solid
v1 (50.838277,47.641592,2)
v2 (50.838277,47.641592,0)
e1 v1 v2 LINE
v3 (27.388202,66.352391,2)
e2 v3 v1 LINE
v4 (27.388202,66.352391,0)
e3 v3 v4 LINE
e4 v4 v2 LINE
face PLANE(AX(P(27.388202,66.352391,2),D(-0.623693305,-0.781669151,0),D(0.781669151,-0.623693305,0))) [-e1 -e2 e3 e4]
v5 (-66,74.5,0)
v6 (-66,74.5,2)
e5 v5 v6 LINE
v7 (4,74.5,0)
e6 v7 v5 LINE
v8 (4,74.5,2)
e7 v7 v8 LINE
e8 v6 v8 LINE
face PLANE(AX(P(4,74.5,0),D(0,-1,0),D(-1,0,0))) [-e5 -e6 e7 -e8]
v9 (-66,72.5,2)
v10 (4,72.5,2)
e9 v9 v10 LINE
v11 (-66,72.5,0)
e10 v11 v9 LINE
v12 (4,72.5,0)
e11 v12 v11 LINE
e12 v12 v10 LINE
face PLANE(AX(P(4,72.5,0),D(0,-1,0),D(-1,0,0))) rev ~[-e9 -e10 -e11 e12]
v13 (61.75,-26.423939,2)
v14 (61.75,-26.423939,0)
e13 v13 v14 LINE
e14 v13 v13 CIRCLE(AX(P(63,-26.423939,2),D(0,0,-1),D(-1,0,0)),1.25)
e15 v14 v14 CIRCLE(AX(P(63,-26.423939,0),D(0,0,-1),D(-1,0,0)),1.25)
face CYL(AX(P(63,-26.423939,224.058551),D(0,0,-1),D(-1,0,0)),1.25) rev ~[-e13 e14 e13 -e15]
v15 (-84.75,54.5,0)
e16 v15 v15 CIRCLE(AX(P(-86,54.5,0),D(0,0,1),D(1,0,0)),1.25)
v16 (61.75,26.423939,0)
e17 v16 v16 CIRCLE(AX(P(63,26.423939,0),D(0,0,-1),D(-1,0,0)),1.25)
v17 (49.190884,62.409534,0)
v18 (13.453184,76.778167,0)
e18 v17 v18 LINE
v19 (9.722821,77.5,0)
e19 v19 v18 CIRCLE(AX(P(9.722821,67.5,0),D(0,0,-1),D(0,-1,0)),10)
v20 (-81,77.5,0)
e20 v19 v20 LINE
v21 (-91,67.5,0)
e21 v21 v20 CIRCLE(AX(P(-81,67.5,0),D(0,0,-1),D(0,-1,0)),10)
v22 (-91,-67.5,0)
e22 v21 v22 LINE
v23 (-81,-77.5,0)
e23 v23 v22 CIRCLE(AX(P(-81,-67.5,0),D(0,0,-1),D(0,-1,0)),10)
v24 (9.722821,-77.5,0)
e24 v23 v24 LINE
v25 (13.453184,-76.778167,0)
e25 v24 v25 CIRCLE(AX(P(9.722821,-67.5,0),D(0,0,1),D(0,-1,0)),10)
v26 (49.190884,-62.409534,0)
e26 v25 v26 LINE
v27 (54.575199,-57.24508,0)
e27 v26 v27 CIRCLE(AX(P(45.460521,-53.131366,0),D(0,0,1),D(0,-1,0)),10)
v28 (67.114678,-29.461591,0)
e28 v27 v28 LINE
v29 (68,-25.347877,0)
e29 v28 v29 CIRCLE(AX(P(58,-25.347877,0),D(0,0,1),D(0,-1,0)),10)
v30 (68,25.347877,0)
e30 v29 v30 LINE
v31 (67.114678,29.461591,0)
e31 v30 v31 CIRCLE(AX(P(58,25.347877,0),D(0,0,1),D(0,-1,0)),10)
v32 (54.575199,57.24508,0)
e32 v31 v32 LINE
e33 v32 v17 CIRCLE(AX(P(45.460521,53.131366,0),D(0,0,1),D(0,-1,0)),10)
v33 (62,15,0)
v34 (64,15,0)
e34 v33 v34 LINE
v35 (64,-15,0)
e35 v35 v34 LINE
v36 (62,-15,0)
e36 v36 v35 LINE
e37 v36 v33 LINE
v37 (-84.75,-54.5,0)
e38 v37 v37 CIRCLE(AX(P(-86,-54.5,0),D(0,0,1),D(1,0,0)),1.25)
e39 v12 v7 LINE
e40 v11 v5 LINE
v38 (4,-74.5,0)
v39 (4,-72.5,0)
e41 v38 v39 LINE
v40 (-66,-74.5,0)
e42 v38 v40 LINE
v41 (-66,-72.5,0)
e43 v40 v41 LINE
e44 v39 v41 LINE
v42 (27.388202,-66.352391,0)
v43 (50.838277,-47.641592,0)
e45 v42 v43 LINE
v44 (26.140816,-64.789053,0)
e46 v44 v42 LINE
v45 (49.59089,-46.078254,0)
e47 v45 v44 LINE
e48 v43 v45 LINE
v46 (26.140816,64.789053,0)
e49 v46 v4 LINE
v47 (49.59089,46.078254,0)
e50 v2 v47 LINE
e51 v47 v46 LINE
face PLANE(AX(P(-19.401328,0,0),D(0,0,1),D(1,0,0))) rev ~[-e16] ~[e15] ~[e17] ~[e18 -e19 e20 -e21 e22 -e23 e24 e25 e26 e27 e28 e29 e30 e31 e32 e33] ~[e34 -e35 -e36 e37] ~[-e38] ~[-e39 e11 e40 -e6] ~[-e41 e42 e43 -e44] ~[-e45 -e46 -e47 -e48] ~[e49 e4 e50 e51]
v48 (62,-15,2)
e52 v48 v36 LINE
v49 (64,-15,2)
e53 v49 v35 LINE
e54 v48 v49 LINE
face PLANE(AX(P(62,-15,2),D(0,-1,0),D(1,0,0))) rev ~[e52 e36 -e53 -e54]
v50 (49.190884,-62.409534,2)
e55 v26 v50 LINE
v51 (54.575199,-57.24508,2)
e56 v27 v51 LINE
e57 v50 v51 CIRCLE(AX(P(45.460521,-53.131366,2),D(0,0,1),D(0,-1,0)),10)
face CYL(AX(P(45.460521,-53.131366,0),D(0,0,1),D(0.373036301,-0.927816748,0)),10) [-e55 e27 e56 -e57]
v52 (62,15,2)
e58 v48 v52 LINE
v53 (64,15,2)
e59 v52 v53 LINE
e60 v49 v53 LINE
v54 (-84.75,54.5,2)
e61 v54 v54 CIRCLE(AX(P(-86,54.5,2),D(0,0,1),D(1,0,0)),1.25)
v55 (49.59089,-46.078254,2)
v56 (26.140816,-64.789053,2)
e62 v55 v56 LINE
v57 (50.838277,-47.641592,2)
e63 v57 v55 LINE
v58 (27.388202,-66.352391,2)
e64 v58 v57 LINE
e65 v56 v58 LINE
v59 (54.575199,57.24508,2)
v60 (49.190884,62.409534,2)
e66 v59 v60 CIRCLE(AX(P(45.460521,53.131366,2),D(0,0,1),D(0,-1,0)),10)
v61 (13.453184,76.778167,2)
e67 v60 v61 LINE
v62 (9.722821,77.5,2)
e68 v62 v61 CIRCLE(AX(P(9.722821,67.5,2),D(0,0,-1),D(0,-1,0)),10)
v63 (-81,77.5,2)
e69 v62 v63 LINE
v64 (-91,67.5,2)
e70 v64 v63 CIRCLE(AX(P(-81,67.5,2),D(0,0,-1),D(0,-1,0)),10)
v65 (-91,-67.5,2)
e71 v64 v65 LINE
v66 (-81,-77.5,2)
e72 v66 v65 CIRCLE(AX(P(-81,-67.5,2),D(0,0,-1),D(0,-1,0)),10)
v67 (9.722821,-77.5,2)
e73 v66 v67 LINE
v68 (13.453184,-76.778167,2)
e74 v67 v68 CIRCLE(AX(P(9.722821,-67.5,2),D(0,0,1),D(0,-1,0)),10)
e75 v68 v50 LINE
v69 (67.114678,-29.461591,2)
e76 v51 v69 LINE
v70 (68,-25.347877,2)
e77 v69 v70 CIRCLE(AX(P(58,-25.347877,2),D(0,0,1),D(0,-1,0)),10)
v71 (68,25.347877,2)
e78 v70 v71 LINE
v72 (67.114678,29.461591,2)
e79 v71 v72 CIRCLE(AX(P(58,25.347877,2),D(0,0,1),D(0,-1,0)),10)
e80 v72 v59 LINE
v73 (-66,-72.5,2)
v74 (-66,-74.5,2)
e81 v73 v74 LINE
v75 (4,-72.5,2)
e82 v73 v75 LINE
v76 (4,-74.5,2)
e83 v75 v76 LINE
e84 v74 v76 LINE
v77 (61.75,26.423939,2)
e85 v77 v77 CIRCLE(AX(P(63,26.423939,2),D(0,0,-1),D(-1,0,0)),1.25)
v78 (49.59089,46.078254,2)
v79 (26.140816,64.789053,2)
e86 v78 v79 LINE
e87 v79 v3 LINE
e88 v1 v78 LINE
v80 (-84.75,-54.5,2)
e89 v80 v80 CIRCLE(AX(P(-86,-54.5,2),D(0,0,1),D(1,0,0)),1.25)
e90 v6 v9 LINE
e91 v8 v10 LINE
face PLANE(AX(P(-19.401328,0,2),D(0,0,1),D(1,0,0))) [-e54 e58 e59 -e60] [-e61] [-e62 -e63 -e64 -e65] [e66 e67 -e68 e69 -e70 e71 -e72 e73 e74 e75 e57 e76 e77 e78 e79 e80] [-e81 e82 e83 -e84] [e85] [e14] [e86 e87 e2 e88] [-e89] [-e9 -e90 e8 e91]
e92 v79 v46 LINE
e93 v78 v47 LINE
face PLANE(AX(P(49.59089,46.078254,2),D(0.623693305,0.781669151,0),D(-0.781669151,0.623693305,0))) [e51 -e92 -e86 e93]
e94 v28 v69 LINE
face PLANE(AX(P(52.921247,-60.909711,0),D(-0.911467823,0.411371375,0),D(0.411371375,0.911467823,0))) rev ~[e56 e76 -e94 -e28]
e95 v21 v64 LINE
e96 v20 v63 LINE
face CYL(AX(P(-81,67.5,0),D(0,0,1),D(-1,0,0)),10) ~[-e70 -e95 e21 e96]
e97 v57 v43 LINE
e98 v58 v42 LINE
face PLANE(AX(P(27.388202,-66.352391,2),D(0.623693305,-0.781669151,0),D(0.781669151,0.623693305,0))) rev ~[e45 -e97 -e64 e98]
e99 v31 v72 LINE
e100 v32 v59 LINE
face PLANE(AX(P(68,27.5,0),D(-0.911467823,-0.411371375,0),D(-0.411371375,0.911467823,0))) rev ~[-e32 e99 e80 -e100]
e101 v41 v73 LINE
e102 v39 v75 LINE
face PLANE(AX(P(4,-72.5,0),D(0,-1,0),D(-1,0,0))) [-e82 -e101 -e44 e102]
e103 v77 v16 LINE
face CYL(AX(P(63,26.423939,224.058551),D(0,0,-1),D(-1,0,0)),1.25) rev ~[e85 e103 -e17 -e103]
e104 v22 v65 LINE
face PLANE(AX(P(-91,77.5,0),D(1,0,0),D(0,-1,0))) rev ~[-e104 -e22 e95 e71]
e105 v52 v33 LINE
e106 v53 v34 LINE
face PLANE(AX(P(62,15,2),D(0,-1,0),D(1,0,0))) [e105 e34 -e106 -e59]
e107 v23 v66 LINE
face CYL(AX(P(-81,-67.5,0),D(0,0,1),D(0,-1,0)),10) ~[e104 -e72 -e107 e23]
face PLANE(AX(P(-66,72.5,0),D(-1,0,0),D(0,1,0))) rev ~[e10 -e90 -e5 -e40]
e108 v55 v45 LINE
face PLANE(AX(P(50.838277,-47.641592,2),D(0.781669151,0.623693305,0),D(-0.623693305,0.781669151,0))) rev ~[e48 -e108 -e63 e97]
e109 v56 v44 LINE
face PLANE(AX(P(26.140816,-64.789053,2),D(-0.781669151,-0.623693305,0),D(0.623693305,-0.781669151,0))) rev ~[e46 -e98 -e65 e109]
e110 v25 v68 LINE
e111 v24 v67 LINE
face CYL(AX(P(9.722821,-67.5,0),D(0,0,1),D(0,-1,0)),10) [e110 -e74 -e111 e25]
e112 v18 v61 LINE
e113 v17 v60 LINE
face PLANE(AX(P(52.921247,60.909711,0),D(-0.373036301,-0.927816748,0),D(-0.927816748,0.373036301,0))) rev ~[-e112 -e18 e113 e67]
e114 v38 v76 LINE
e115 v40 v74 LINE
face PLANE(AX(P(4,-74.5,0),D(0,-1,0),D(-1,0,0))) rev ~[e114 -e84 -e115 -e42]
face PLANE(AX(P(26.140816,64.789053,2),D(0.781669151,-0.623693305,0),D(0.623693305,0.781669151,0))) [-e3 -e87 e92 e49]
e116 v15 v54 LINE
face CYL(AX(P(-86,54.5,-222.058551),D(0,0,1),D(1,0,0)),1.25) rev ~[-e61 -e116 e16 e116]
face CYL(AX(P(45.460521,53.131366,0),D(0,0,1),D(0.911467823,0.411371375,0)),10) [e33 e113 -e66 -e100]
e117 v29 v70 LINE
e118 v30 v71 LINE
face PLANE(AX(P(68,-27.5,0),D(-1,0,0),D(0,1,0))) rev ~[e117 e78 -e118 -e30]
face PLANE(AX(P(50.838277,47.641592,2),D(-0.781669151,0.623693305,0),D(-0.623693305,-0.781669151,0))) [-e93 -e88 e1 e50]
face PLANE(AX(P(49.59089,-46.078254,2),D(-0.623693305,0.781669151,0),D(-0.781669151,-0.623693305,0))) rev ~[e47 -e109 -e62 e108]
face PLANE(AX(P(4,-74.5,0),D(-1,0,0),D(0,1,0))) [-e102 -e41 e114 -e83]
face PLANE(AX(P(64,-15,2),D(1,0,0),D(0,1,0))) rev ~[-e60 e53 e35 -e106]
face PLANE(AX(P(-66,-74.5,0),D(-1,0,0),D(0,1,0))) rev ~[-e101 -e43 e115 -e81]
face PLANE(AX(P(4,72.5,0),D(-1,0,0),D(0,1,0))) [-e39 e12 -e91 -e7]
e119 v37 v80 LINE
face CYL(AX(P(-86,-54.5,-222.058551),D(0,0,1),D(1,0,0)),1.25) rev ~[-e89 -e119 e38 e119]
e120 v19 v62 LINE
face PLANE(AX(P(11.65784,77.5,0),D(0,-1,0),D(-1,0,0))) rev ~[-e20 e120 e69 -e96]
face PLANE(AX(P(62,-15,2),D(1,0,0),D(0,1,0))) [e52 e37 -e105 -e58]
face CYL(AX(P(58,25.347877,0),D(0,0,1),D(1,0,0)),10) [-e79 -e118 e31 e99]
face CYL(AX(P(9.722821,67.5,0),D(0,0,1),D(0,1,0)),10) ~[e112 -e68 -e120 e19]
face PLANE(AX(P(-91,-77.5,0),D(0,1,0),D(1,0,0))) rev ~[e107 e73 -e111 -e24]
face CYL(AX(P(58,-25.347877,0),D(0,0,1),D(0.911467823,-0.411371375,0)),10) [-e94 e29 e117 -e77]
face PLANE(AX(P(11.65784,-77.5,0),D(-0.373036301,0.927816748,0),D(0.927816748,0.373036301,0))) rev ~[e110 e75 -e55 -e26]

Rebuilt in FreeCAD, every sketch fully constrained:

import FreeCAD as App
import Part
import Sketcher
Q = App.Units.Quantity


def edges_at(feature, points):
    """Names of the edges that pass closest to the given points."""
    edges = feature.Shape.Edges
    near = lambda p: min(range(len(edges)), key=lambda i: edges[i].distToShape(Part.Vertex(*p))[0])
    return sorted({f"Edge{near(p) + 1}" for p in points})


def add_polygon(sketch, points):
    """Adds a closed chain of lines whose ends are joined by coincident constraints."""
    first, n = sketch.GeometryCount, len(points)
    for a, b in zip(points, points[1:] + points[:1]):
        sketch.addGeometry(Part.LineSegment(App.Vector(*a, 0), App.Vector(*b, 0)), False)
    for i in range(n):
        sketch.addConstraint(Sketcher.Constraint("Coincident", first + i, 2, first + (i + 1) % n, 1))

doc = App.newDocument("Part")
body = doc.addObject("PartDesign::Body", "Body")

sketch1 = body.newObject("Sketcher::SketchObject", "Sketch")
sketch1.AttachmentSupport = (doc.getObject("XY_Plane"), [""])
sketch1.MapMode = "FlatFace"
add_polygon(sketch1, [(11.65784, -77.5), (52.921247, -60.909711), (68, -27.5), (68, 27.5), (52.921247, 60.909711), (11.65784, 77.5), (-91, 77.5), (-91, -77.5)])
sketch1.addConstraint([
    Sketcher.Constraint("Vertical", 2),
    Sketcher.Constraint("Horizontal", 5),
    Sketcher.Constraint("Vertical", 6),
    Sketcher.Constraint("Horizontal", 7),
    Sketcher.Constraint("Symmetric", 0, 2, 3, 2, -1),
    Sketcher.Constraint("Symmetric", 4, 2, 7, 2, -1),
    Sketcher.Constraint("Equal", 1, 3),
    Sketcher.Constraint("DistanceY", 2, 1, 2, 2, Q("55 mm")),
    Sketcher.Constraint("DistanceY", 6, 2, 6, 1, Q("155 mm")),
    Sketcher.Constraint("DistanceX", -1, 1, 1, 2, Q("68 mm")),
    Sketcher.Constraint("DistanceX", 5, 2, -1, 1, Q("91 mm")),
    Sketcher.Constraint("DistanceX", 5, 2, 5, 1, Q("102.65784 mm")),
    Sketcher.Constraint("Distance", 0, Q("44.473659 mm")),
    Sketcher.Constraint("DistanceY", 0, 2, -1, 1, Q("60.909711 mm")),
])
pad1 = body.newObject("PartDesign::Pad", "Pad")
pad1.Profile = sketch1
pad1.Length = 2

sketch2 = body.newObject("Sketcher::SketchObject", "Sketch001")
sketch2.AttachmentSupport = (doc.getObject("XY_Plane"), [""])
sketch2.MapMode = "FlatFace"
sketch2.addGeometry([
    Part.Circle(App.Vector(-86, -54.5, 0), App.Vector(0, 0, 1), 1.25),
    Part.Circle(App.Vector(-86, 54.5, 0), App.Vector(0, 0, 1), 1.25),
], False)
sketch2.addConstraint([
    Sketcher.Constraint("Equal", 0, 1),
    Sketcher.Constraint("Symmetric", 0, 3, 1, 3, -1),
    Sketcher.Constraint("Diameter", 0, Q("2.5 mm")),
    Sketcher.Constraint("DistanceX", 0, 3, -1, 1, Q("86 mm")),
    Sketcher.Constraint("DistanceY", 0, 3, 1, 3, Q("109 mm")),
])
doc.recompute()
hole = body.newObject("PartDesign::Hole", "Hole")
hole.Profile = sketch2
hole.ThreadType = "None"
hole.Diameter = 2.5
hole.DepthType = "ThroughAll"
hole.Reversed = True

sketch3 = body.newObject("Sketcher::SketchObject", "Sketch002")
sketch3.AttachmentSupport = (doc.getObject("XY_Plane"), [""])
sketch3.MapMode = "FlatFace"
add_polygon(sketch3, [(4, -72.5), (4, -74.5), (-66, -74.5), (-66, -72.5)])
add_polygon(sketch3, [(4, 74.5), (4, 72.5), (-66, 72.5), (-66, 74.5)])
sketch3.addConstraint([
    Sketcher.Constraint("Vertical", 0),
    Sketcher.Constraint("Horizontal", 1),
    Sketcher.Constraint("Vertical", 2),
    Sketcher.Constraint("Horizontal", 3),
    Sketcher.Constraint("Vertical", 4),
    Sketcher.Constraint("Horizontal", 5),
    Sketcher.Constraint("Vertical", 6),
    Sketcher.Constraint("Horizontal", 7),
    Sketcher.Constraint("Symmetric", 3, 2, 4, 2, -1),
    Sketcher.Constraint("Symmetric", 1, 2, 6, 2, -1),
    Sketcher.Constraint("DistanceX", 1, 2, 1, 1, Q("70 mm")),
    Sketcher.Constraint("DistanceY", 0, 2, 0, 1, Q("2 mm")),
    Sketcher.Constraint("DistanceX", -1, 1, 0, 2, Q("4 mm")),
    Sketcher.Constraint("DistanceY", 3, 2, 4, 2, Q("145 mm")),
])
pocket1 = body.newObject("PartDesign::Pocket", "Pocket")
pocket1.Profile = sketch3
pocket1.Length = 10
pocket1.Reversed = True

sketch4 = body.newObject("Sketcher::SketchObject", "Sketch003")
sketch4.AttachmentSupport = (doc.getObject("XY_Plane"), [""])
sketch4.MapMode = "FlatFace"
sketch4.AttachmentOffset = App.Placement(App.Vector(0, 0, 2), App.Rotation())
sketch4.addGeometry([
    Part.Circle(App.Vector(63, 26.423939, 0), App.Vector(0, 0, 1), 1.25),
    Part.Circle(App.Vector(63, -26.423939, 0), App.Vector(0, 0, 1), 1.25),
], False)
sketch4.addConstraint([
    Sketcher.Constraint("Equal", 0, 1),
    Sketcher.Constraint("Symmetric", 0, 3, 1, 3, -1),
    Sketcher.Constraint("Diameter", 0, Q("2.5 mm")),
    Sketcher.Constraint("DistanceX", -1, 1, 0, 3, Q("63 mm")),
    Sketcher.Constraint("DistanceY", -1, 1, 0, 3, Q("26.423939 mm")),
])
doc.recompute()
hole2 = body.newObject("PartDesign::Hole", "Hole001")
hole2.Profile = sketch4
hole2.ThreadType = "None"
hole2.Diameter = 2.5
hole2.DepthType = "ThroughAll"

sketch5 = body.newObject("Sketcher::SketchObject", "Sketch004")
sketch5.AttachmentSupport = (doc.getObject("XY_Plane"), [""])
sketch5.MapMode = "FlatFace"
sketch5.AttachmentOffset = App.Placement(App.Vector(0, 0, 2), App.Rotation())
add_polygon(sketch5, [(50.838277, 47.641592), (27.388202, 66.352391), (26.140816, 64.789053), (49.59089, 46.078254)])
add_polygon(sketch5, [(49.59089, -46.078254), (26.140816, -64.789053), (27.388202, -66.352391), (50.838277, -47.641592)])
add_polygon(sketch5, [(62, 15), (62, -15), (64, -15), (64, 15)])
sketch5.addConstraint([
    Sketcher.Constraint("Vertical", 8),
    Sketcher.Constraint("Horizontal", 9),
    Sketcher.Constraint("Vertical", 10),
    Sketcher.Constraint("Horizontal", 11),
    Sketcher.Constraint("Symmetric", 1, 2, 4, 2, -1),
    Sketcher.Constraint("Symmetric", 0, 2, 5, 2, -1),
    Sketcher.Constraint("Symmetric", 3, 2, 6, 2, -1),
    Sketcher.Constraint("Symmetric", 2, 2, 7, 2, -1),
    Sketcher.Constraint("Perpendicular", 0, 1),
    Sketcher.Constraint("Perpendicular", 1, 2),
    Sketcher.Constraint("Perpendicular", 2, 3),
    Sketcher.Constraint("DistanceX", 9, 1, 9, 2, Q("2 mm")),
    Sketcher.Constraint("DistanceY", 8, 2, 8, 1, Q("30 mm")),
    Sketcher.Constraint("Distance", 0, Q("30 mm")),
    Sketcher.Constraint("Distance", 1, Q("2 mm")),
    Sketcher.Constraint("DistanceX", -1, 1, 8, 2, Q("62 mm")),
    Sketcher.Constraint("DistanceY", 8, 2, -1, 1, Q("15 mm")),
    Sketcher.Constraint("DistanceY", 2, 2, 1, 2, Q("18.710799 mm")),
    Sketcher.Constraint("DistanceY", -1, 1, 0, 2, Q("66.352391 mm")),
    Sketcher.Constraint("DistanceX", -1, 1, 2, 2, Q("49.59089 mm")),
])
pocket2 = body.newObject("PartDesign::Pocket", "Pocket001")
pocket2.Profile = sketch5
pocket2.Length = 10
doc.recompute()

fillet = body.newObject("PartDesign::Fillet", "Fillet")
fillet.Base = (pocket2, edges_at(pocket2, [(-91, 77.5, 1), (-91, -77.5, 1)]))
fillet.Radius = 10
doc.recompute()

fillet2 = body.newObject("PartDesign::Fillet", "Fillet001")
fillet2.Base = (fillet, edges_at(fillet, [
    (11.658, 77.5, 1),
    (52.921, 60.91, 1),
    (68, 27.5, 1),
    (68, -27.5, 1),
    (52.921, -60.91, 1),
    (11.658, -77.5, 1),
]))
fillet2.Radius = 10

doc.recompute()
